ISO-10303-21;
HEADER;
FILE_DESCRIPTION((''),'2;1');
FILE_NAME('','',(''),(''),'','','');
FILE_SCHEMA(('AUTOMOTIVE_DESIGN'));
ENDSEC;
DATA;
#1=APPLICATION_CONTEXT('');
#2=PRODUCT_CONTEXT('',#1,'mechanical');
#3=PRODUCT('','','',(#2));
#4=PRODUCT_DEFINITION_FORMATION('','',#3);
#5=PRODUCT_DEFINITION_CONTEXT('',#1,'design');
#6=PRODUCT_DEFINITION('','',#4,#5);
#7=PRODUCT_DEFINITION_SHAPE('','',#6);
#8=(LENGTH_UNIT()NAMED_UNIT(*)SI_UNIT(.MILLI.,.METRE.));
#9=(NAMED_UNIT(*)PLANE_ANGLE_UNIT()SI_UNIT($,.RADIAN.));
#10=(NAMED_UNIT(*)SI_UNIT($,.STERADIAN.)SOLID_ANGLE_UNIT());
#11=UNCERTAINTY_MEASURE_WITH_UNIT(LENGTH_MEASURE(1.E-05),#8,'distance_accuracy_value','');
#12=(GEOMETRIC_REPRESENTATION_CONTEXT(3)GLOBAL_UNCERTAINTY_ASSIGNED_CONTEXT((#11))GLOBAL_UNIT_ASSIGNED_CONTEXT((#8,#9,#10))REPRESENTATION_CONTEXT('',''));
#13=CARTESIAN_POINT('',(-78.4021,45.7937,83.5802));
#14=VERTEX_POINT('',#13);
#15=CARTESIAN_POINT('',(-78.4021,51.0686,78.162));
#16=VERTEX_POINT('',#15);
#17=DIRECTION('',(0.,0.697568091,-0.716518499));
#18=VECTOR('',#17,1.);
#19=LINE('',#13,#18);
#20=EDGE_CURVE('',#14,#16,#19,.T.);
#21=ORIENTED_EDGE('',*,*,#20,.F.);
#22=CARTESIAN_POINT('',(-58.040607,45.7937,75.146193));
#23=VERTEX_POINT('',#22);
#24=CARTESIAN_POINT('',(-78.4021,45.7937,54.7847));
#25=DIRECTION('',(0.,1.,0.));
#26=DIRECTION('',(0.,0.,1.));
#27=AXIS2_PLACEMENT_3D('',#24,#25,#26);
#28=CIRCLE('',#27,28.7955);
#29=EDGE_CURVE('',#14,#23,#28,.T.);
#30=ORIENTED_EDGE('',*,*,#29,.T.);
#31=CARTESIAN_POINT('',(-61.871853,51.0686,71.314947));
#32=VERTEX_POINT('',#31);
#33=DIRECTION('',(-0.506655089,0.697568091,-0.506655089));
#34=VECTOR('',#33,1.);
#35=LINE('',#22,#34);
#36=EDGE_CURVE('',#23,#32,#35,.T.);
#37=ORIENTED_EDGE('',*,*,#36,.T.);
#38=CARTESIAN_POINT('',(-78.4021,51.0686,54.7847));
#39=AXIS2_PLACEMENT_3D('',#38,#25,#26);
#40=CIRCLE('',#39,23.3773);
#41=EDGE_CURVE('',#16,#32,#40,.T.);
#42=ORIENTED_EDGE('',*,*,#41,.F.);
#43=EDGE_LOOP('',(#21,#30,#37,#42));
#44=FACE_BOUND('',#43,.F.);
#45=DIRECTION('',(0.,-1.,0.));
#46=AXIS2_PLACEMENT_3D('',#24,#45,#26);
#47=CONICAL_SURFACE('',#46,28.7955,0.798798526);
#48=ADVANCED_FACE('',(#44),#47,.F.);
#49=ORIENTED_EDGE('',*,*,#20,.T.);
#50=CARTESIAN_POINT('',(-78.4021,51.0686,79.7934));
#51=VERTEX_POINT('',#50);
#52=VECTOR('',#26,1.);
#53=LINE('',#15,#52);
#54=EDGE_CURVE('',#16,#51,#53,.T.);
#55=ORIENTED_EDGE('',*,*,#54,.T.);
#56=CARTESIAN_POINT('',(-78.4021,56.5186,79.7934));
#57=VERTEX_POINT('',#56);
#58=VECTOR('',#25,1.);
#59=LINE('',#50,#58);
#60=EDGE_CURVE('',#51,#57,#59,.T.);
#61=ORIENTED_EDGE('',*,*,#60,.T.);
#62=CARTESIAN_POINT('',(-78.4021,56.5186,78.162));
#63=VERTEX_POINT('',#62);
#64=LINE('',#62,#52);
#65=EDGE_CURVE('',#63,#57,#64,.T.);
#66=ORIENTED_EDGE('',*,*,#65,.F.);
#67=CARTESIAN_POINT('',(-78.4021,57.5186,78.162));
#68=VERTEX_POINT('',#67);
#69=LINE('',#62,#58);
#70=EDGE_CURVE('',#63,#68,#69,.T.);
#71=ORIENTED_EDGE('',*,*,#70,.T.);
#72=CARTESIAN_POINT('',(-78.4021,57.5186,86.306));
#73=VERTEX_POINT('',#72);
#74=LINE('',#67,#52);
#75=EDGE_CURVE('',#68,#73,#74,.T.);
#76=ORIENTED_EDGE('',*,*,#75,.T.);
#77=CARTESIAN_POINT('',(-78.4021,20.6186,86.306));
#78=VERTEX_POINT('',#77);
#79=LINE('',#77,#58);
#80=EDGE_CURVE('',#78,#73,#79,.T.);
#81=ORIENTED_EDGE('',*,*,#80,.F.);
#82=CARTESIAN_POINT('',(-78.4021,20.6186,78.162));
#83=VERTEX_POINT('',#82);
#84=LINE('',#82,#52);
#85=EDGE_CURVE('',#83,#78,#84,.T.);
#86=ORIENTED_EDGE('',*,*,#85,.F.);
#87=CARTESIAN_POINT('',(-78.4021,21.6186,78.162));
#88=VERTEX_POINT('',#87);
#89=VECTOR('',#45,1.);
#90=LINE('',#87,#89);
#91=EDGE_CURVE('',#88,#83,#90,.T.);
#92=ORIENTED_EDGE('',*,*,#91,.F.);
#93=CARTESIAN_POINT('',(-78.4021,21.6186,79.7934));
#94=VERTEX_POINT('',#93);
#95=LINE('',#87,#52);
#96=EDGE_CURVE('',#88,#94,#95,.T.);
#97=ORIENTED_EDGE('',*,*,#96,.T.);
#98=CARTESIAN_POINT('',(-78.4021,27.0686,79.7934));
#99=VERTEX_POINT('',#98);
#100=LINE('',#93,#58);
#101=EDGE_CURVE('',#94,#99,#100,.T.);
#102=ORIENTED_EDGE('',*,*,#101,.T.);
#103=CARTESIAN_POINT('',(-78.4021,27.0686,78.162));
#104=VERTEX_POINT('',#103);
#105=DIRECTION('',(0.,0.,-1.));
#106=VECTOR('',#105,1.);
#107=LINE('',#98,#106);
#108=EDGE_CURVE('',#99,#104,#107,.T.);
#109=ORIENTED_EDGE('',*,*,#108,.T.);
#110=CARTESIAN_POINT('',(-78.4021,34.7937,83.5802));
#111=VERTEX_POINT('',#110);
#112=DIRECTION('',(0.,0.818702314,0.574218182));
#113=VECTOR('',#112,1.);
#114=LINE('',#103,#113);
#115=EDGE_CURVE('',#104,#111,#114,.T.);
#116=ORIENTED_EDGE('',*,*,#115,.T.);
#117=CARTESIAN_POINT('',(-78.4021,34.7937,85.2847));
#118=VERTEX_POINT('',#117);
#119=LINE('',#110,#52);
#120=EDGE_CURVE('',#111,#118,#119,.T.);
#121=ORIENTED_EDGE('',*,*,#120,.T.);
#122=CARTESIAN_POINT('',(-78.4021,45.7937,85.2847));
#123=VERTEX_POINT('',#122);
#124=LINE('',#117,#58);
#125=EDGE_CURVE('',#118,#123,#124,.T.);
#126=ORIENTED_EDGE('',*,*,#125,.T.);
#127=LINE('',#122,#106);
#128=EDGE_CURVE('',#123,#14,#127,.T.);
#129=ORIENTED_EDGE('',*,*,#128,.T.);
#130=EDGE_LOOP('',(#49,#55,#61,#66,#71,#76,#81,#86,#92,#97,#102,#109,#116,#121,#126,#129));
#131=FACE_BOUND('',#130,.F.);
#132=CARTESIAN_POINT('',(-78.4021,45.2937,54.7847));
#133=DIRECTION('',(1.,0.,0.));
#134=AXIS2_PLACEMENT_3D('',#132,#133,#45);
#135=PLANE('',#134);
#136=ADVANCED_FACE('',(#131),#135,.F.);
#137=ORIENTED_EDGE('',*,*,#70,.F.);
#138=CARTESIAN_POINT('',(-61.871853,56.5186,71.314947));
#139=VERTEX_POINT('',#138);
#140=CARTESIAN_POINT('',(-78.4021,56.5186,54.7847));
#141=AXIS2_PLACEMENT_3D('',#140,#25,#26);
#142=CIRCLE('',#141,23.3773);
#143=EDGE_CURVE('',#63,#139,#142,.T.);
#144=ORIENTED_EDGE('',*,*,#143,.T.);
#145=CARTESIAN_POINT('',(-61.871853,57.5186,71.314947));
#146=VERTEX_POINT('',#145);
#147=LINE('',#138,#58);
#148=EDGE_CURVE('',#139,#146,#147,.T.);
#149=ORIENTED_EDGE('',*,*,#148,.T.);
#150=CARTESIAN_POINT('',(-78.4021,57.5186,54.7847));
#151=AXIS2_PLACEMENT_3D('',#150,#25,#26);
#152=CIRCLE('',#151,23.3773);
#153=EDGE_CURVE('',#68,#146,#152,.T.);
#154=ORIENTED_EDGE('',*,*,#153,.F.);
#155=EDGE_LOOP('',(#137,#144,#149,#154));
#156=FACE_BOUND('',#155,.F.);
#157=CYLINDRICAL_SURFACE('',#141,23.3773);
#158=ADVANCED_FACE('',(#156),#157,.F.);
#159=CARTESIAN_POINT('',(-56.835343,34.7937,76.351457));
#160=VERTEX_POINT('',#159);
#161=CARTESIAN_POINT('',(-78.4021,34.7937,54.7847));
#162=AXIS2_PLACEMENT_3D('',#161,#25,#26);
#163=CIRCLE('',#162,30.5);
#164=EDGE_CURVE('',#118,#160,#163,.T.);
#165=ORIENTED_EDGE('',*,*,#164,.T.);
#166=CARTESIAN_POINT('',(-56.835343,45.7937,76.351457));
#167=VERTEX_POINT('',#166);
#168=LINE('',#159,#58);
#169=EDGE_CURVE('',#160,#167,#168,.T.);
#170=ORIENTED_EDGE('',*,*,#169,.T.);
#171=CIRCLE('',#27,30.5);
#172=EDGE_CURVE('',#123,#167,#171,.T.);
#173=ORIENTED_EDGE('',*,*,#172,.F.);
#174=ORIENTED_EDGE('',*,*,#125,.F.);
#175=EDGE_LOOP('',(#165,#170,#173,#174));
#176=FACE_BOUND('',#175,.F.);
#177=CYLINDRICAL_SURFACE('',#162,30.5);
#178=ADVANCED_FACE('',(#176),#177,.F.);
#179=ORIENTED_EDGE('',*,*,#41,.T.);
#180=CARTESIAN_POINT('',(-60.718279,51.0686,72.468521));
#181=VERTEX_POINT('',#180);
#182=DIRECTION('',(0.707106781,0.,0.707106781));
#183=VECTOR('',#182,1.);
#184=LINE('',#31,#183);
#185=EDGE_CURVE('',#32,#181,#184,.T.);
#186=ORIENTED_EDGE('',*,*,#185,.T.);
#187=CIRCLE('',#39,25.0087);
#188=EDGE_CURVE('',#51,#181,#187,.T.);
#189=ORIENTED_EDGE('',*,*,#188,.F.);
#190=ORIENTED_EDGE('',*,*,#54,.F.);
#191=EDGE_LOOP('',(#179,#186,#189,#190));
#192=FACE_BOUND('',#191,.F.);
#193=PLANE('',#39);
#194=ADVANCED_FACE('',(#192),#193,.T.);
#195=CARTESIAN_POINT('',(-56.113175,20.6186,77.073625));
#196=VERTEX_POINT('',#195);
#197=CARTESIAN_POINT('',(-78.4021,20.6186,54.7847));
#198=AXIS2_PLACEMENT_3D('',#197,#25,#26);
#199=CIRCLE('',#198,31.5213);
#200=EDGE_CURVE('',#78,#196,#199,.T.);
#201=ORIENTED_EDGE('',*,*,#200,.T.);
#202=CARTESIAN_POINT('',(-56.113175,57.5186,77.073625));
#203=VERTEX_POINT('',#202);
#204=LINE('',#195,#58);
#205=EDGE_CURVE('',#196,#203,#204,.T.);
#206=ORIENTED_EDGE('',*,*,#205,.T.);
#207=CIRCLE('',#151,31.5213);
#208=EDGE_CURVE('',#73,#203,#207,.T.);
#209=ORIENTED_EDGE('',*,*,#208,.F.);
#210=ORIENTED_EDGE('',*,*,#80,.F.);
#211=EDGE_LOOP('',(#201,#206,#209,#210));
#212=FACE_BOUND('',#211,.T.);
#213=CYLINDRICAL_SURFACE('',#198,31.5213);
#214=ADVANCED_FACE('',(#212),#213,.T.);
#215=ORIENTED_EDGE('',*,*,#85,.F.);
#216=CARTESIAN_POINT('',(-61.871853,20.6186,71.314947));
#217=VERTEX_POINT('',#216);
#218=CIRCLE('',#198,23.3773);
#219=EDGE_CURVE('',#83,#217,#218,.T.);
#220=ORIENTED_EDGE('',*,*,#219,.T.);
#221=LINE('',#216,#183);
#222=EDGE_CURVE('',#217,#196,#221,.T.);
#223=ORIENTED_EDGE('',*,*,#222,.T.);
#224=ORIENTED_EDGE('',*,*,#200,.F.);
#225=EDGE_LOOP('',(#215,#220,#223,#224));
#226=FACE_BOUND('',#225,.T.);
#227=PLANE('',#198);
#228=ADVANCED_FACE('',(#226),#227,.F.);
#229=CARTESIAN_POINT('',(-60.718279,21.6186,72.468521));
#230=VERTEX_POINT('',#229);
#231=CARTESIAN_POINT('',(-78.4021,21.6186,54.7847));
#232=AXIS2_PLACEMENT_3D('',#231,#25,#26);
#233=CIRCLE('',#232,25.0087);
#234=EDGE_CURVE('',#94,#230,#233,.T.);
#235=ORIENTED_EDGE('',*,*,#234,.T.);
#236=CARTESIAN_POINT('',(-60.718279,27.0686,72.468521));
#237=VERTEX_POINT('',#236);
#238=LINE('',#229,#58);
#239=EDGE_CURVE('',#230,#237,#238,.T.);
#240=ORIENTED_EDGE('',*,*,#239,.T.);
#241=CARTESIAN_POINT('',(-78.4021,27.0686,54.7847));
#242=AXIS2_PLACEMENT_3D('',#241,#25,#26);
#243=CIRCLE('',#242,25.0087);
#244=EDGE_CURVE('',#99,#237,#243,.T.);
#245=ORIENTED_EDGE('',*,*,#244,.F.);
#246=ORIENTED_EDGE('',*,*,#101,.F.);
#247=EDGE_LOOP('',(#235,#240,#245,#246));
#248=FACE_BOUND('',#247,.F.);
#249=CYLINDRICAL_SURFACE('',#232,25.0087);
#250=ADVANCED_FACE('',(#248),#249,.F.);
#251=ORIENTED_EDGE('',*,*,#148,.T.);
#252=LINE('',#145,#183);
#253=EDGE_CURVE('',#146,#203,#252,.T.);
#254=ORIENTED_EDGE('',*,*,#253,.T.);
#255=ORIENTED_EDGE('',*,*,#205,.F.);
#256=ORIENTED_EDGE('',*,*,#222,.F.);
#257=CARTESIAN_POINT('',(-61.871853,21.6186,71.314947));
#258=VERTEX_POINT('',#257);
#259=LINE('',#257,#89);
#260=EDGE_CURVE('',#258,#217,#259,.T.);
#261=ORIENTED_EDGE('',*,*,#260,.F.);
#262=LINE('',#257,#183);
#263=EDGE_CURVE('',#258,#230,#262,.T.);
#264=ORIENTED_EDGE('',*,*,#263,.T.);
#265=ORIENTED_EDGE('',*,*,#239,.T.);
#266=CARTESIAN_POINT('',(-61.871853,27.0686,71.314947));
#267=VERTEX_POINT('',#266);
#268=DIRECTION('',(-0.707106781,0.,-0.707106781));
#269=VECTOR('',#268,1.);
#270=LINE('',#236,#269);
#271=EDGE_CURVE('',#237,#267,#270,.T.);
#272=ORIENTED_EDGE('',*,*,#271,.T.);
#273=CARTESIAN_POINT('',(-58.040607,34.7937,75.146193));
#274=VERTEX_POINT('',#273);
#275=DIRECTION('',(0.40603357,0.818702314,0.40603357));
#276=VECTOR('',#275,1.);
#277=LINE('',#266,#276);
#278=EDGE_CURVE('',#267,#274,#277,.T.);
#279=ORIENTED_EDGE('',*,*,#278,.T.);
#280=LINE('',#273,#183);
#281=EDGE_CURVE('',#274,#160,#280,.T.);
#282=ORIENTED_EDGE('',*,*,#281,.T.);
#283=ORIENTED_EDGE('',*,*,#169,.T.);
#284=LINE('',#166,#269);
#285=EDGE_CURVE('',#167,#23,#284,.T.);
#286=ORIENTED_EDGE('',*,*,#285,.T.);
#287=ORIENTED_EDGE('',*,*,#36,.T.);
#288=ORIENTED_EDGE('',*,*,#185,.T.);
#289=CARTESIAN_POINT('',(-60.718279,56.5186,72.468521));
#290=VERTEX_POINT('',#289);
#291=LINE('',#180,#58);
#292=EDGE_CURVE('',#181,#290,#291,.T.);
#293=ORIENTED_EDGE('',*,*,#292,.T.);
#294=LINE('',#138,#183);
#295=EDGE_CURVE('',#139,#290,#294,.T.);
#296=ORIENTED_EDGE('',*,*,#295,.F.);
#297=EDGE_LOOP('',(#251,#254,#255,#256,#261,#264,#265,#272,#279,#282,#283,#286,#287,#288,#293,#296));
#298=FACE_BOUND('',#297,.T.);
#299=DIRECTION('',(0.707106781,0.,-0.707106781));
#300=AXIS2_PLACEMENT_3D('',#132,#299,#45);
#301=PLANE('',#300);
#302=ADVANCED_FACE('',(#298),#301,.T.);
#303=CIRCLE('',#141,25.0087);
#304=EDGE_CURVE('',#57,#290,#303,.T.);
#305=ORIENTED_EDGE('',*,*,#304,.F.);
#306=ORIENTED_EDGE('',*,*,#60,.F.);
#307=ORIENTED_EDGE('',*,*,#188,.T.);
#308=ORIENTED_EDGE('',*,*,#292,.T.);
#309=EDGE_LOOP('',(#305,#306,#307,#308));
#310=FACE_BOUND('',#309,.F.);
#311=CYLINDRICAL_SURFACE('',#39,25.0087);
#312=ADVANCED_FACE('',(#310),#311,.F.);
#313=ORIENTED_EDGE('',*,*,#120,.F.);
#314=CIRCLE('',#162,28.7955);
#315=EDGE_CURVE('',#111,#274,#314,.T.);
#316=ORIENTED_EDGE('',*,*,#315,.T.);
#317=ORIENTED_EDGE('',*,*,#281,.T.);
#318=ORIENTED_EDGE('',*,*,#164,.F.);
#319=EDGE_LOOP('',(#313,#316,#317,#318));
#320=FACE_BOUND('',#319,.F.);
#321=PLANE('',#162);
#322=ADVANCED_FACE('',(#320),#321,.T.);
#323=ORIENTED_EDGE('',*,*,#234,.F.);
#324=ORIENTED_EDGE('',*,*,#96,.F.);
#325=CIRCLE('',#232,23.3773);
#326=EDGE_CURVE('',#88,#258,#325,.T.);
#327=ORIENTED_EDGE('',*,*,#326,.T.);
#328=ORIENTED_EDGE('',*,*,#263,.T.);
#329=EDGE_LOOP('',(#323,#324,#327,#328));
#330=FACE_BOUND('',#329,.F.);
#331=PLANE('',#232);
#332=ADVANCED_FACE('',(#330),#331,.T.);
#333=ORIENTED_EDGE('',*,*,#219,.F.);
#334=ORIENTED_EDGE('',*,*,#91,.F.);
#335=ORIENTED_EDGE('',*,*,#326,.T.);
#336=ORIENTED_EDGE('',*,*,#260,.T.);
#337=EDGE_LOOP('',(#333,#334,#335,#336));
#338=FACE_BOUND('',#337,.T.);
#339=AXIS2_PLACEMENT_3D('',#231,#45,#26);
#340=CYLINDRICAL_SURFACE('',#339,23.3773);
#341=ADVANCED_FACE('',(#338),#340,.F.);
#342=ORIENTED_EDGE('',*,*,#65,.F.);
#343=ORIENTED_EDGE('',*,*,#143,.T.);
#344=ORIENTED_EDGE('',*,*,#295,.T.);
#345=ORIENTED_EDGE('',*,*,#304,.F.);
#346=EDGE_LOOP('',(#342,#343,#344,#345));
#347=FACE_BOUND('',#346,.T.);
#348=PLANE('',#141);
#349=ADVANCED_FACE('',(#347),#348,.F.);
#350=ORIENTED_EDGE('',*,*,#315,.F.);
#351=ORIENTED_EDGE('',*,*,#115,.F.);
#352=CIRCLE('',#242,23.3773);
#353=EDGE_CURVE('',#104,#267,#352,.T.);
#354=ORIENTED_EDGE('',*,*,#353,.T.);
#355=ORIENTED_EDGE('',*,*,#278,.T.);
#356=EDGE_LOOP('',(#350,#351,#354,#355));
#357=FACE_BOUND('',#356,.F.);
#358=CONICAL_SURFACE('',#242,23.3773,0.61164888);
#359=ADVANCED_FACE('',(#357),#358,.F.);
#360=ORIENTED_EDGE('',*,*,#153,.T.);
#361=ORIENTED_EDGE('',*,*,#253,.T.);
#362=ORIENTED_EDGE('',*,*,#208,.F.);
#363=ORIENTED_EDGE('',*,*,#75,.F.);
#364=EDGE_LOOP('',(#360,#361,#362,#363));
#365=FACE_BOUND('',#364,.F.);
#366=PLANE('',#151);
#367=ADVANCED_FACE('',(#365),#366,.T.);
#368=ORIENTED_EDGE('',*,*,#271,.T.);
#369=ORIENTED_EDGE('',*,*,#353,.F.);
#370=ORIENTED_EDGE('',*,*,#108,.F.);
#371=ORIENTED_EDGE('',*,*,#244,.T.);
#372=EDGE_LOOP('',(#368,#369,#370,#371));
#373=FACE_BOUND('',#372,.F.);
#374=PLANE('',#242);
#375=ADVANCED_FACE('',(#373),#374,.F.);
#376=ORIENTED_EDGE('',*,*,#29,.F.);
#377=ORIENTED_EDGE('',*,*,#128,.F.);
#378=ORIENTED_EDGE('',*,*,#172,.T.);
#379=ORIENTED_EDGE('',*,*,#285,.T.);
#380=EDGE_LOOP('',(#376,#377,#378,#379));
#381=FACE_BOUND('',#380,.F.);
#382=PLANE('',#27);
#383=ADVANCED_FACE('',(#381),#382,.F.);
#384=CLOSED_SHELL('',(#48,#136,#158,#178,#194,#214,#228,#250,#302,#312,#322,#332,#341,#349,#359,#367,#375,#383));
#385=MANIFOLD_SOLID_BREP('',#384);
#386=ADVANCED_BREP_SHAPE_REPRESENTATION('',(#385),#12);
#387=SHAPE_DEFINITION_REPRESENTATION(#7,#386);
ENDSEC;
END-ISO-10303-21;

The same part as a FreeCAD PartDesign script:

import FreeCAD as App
import Part
import Sketcher
from FreeCAD import Vector
Q = App.Units.Quantity


def add_polygon(sketch, points):
    """Adds a closed chain of lines whose ends are joined by coincident constraints."""
    first, n = sketch.GeometryCount, len(points)
    for a, b in zip(points, points[1:] + points[:1]):
        sketch.addGeometry(Part.LineSegment(App.Vector(*a, 0), App.Vector(*b, 0)), False)
    for i in range(n):
        sketch.addConstraint(Sketcher.Constraint("Coincident", first + i, 2, first + (i + 1) % n, 1))

doc = App.newDocument("Part")
body = doc.addObject("PartDesign::Body", "Body")

sketch1 = doc.addObject("Sketcher::SketchObject", "Sketch")
body.addObject(sketch1)
sketch1.AttachmentSupport = (doc.YZ_Plane, [""])
sketch1.MapMode = "FlatFace"
sketch1.AttachmentOffset = App.Placement(Vector(0, 0, -78.4021), App.Rotation())
add_polygon(sketch1, [(56.5, 79.8), (56.5, 78.2), (57.5, 78.2), (57.5, 86.3), (20.6, 86.3), (20.6, 78.2), (21.6, 78.2), (21.6, 79.8), (27.1, 79.8), (27.1, 78.2), (34.8, 83.6), (34.8, 85.3), (45.8, 85.3), (45.8, 83.6), (51.1, 78.2), (51.1, 79.8)])
sketch1.addGeometry(Part.LineSegment(Vector(20.6, 54.8, 0), Vector(57.5, 54.8, 0)), True)
sketch1.addConstraint([
    Sketcher.Constraint("Vertical", 0),
    Sketcher.Constraint("Horizontal", 1),
    Sketcher.Constraint("Vertical", 2),
    Sketcher.Constraint("Horizontal", 3),
    Sketcher.Constraint("Vertical", 4),
    Sketcher.Constraint("Horizontal", 5),
    Sketcher.Constraint("Vertical", 6),
    Sketcher.Constraint("Horizontal", 7),
    Sketcher.Constraint("Vertical", 8),
    Sketcher.Constraint("Vertical", 10),
    Sketcher.Constraint("Horizontal", 11),
    Sketcher.Constraint("Vertical", 12),
    Sketcher.Constraint("Vertical", 14),
    Sketcher.Constraint("Horizontal", 15),
    Sketcher.Constraint("Horizontal", 16),
    Sketcher.Constraint("Horizontal", 1, 2, 4, 2),
    Sketcher.Constraint("Horizontal", 5, 2, 8, 2),
    Sketcher.Constraint("Horizontal", 9, 2, 12, 2),
    Sketcher.Constraint("Horizontal", 8, 2, 13, 2),
    Sketcher.Constraint("Horizontal", 7, 2, 14, 2),
    Sketcher.Constraint("Vertical", 4, 2, 16, 1),
    Sketcher.Constraint("Vertical", 2, 2, 16, 2),
    Sketcher.Constraint("Equal", 1, 5),
    Sketcher.Constraint("Equal", 7, 15),
    Sketcher.Constraint("DistanceX", 1, 1, 1, 2, Q("1 mm")),
    Sketcher.Constraint("DistanceX", 11, 1, 11, 2, Q("11 mm")),
    Sketcher.Constraint("DistanceX", 3, 2, 3, 1, Q("36.9 mm")),
    Sketcher.Constraint("DistanceX", 7, 1, 7, 2, Q("5.45 mm")),
    Sketcher.Constraint("DistanceY", 2, 1, 2, 2, Q("8.144 mm")),
    Sketcher.Constraint("DistanceY", 0, 2, 0, 1, Q("1.6314 mm")),
    Sketcher.Constraint("DistanceY", 10, 1, 10, 2, Q("1.7045 mm")),
    Sketcher.Constraint("DistanceY", -1, 1, 0, 2, Q("78.162 mm")),
    Sketcher.Constraint("DistanceX", 7, 2, 9, 2, Q("7.725 mm")),
    Sketcher.Constraint("Distance", 9, Q("9.4358 mm")),
    Sketcher.Constraint("DistanceX", -1, 1, 0, 2, Q("56.5186 mm")),
    Sketcher.Constraint("DistanceY", -1, 1, 16, 1, Q("54.7847 mm")),
])
revolution = doc.addObject("PartDesign::Revolution", "Revolution")
body.addObject(revolution)
revolution.Profile = sketch1
revolution.ReferenceAxis = (sketch1, ["Axis0"])
revolution.Angle = 45

doc.recompute()
